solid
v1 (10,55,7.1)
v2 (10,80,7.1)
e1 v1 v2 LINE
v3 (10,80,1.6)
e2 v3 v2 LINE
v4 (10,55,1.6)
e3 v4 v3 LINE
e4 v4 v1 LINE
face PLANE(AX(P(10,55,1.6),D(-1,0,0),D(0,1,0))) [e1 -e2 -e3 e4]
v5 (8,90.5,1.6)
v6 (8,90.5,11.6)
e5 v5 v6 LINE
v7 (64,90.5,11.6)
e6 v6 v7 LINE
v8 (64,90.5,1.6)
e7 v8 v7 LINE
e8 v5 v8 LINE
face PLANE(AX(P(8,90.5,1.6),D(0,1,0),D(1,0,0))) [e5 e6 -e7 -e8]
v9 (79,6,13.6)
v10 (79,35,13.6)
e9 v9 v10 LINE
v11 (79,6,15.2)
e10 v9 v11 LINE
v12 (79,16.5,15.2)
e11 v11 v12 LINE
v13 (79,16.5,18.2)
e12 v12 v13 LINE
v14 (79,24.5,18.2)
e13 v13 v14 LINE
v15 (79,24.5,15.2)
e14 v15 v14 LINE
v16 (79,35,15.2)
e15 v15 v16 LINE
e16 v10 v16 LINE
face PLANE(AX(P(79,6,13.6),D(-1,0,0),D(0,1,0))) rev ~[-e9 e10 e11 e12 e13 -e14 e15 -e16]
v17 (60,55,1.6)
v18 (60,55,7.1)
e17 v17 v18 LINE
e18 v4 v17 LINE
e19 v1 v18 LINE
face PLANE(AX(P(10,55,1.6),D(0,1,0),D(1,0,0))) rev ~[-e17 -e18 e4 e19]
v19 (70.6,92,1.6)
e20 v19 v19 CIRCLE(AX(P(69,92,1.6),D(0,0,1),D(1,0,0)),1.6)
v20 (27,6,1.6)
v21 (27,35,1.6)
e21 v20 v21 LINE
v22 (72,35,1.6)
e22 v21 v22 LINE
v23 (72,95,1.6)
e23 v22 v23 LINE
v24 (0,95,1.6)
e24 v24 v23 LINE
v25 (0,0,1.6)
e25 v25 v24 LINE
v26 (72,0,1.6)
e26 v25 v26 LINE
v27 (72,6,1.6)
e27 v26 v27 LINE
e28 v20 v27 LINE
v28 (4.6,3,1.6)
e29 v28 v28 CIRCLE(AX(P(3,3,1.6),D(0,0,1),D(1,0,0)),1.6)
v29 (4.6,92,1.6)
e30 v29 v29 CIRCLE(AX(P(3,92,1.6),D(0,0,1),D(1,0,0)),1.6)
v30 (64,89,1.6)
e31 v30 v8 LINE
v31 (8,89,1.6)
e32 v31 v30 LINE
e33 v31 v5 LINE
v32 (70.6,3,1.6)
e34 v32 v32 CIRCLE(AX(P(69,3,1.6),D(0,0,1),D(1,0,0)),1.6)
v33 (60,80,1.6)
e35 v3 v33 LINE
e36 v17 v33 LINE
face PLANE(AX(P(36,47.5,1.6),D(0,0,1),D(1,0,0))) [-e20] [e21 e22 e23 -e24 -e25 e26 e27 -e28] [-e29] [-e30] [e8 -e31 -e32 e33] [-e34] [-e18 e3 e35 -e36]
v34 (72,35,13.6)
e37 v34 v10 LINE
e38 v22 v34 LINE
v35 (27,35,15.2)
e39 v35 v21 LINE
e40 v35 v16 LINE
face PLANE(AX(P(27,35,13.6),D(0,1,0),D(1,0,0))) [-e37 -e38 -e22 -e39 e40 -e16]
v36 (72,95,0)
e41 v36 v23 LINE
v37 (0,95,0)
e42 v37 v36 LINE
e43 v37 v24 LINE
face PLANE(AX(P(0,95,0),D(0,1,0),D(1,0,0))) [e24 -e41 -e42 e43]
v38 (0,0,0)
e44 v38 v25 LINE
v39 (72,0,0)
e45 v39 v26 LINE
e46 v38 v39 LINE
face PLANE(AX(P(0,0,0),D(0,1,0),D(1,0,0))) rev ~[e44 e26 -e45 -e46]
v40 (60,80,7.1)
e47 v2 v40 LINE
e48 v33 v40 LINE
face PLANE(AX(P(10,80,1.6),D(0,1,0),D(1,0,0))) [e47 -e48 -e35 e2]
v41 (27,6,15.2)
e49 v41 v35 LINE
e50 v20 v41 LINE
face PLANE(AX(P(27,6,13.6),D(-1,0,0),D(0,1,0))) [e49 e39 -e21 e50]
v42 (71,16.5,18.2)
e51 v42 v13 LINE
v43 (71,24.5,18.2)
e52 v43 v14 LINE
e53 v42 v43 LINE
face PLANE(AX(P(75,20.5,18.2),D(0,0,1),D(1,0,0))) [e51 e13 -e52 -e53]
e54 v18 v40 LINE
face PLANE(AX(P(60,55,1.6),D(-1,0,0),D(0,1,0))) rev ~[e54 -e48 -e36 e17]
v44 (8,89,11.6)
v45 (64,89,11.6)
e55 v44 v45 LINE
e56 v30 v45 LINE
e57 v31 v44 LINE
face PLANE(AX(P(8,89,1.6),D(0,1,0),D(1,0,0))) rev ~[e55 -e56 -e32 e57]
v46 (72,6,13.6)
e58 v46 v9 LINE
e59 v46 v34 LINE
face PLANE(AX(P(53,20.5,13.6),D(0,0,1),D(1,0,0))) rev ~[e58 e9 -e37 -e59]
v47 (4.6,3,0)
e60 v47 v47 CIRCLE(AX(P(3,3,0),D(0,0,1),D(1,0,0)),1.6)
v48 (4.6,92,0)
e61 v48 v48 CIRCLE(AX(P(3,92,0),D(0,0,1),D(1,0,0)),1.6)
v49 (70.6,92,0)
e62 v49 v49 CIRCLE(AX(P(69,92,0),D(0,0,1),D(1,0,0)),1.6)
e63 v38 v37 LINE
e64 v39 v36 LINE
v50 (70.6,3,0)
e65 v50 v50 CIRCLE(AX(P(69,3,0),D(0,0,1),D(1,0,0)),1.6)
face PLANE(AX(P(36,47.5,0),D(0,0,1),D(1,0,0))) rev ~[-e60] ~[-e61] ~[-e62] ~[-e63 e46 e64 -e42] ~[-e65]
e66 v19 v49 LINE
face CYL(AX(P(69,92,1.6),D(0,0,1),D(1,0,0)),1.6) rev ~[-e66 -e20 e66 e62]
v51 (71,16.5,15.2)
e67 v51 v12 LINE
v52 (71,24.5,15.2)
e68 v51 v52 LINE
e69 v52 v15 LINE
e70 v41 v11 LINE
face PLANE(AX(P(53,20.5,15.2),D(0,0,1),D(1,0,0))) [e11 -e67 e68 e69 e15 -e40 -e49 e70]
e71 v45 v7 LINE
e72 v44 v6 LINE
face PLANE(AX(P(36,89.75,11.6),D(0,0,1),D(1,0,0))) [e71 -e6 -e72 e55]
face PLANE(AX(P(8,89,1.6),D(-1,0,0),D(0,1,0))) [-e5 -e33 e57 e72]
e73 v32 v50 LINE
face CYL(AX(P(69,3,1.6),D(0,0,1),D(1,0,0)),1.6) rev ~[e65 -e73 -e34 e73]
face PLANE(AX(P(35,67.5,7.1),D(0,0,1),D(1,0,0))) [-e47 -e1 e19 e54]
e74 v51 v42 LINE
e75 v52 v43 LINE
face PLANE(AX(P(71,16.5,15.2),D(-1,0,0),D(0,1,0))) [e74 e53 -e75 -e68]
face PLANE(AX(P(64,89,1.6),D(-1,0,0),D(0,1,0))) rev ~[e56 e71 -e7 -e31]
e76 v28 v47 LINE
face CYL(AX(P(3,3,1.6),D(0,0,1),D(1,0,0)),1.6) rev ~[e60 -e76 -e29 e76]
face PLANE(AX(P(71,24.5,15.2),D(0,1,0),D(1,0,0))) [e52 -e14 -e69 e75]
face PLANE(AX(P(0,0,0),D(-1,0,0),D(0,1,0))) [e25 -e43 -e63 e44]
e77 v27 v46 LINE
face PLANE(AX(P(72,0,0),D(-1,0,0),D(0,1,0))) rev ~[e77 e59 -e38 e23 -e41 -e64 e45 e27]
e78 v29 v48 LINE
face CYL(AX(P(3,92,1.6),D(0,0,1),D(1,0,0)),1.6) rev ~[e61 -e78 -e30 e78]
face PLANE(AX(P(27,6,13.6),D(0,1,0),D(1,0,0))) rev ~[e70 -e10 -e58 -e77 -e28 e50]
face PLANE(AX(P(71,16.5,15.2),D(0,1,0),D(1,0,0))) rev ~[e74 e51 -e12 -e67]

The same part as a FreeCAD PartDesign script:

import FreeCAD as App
import Part
import Sketcher
from FreeCAD import Vector


def add_polygon(sketch, points):
    """Adds a closed chain of lines whose ends are joined by coincident constraints."""
    first, n = sketch.GeometryCount, len(points)
    for a, b in zip(points, points[1:] + points[:1]):
        sketch.addGeometry(Part.LineSegment(App.Vector(*a, 0), App.Vector(*b, 0)), False)
    for i in range(n):
        sketch.addConstraint(Sketcher.Constraint("Coincident", first + i, 2, first + (i + 1) % n, 1))

doc = App.newDocument("Part")
params = doc.addObject("Spreadsheet::Sheet", "Params")
for row, (alias, value) in enumerate([
    ("sketch1_width", "72 mm"),
    ("sketch1_height", "95 mm"),
    ("pad1_length", "1.6 mm"),
    ("sketch2_diameter", "3.2 mm"),
    ("sketch3_width", "45 mm"),
    ("sketch3_height", "29 mm"),
    ("pad2_length", "12 mm"),
    ("sketch4_width", "52 mm"),
    ("sketch4_height", "29 mm"),
    ("pad3_length", "1.6 mm"),
    ("sketch5_width", "8 mm"),
    ("pad4_length", "3 mm"),
    ("sketch6_width", "56 mm"),
    ("sketch6_height", "1.5 mm"),
    ("pad5_length", "10 mm"),
    ("sketch7_width", "50 mm"),
    ("sketch7_height", "25 mm"),
    ("pad6_length", "5.5 mm"),
], start=1):
    params.set(f"A{row}", alias)
    params.set(f"B{row}", "=" + value)
    params.setAlias(f"B{row}", alias)

body = doc.addObject("PartDesign::Body", "Body")

sketch1 = doc.addObject("Sketcher::SketchObject", "Sketch")
body.addObject(sketch1)
sketch1.AttachmentSupport = (doc.XY_Plane, [""])
sketch1.MapMode = "FlatFace"
add_polygon(sketch1, [(0, 95), (0, 0), (72, 0), (72, 95)])
sketch1.addConstraint([
    Sketcher.Constraint("Vertical", 0),
    Sketcher.Constraint("Horizontal", 1),
    Sketcher.Constraint("Vertical", 2),
    Sketcher.Constraint("Horizontal", 3),
    Sketcher.Constraint("Coincident", 0, 2, -1, 1),
    Sketcher.Constraint("DistanceX", 1, 1, 1, 2, 72.0),
    Sketcher.Constraint("DistanceY", 0, 2, 0, 1, 95.0),
])
sketch1.setExpression("Constraints[9]", "Params.sketch1_width")
sketch1.setExpression("Constraints[10]", "Params.sketch1_height")
pad1 = doc.addObject("PartDesign::Pad", "Pad")
body.addObject(pad1)
pad1.Profile = sketch1
pad1.setExpression("Length", "Params.pad1_length")

sketch2 = doc.addObject("Sketcher::SketchObject", "Sketch001")
body.addObject(sketch2)
sketch2.AttachmentSupport = (doc.XY_Plane, [""])
sketch2.MapMode = "FlatFace"
sketch2.AttachmentOffset = App.Placement(Vector(0, 0, 1.6), App.Rotation())
sketch2.addGeometry([
    Part.Circle(Vector(3, 3, 0), Vector(0, 0, 1), 1.6),
    Part.Circle(Vector(69, 3, 0), Vector(0, 0, 1), 1.6),
    Part.Circle(Vector(69, 92, 0), Vector(0, 0, 1), 1.6),
    Part.Circle(Vector(3, 92, 0), Vector(0, 0, 1), 1.6),
], False)
sketch2.addConstraint([
    Sketcher.Constraint("Equal", 0, 1),
    Sketcher.Constraint("Equal", 1, 2),
    Sketcher.Constraint("Equal", 2, 3),
    Sketcher.Constraint("Horizontal", 0, 3, 1, 3),
    Sketcher.Constraint("Horizontal", 2, 3, 3, 3),
    Sketcher.Constraint("Vertical", 1, 3, 2, 3),
    Sketcher.Constraint("Vertical", 0, 3, 3, 3),
    Sketcher.Constraint("Diameter", 0, 3.2),
    Sketcher.Constraint("DistanceX", -1, 1, 0, 3, 3.0),
    Sketcher.Constraint("DistanceY", -1, 1, 0, 3, 3.0),
    Sketcher.Constraint("DistanceX", -1, 1, 1, 3, 69.0),
    Sketcher.Constraint("DistanceY", -1, 1, 2, 3, 92.0),
])
sketch2.setExpression("Constraints[7]", "Params.sketch2_diameter")
pocket1 = doc.addObject("PartDesign::Pocket", "Pocket")
body.addObject(pocket1)
pocket1.Profile = sketch2
pocket1.Type = "ThroughAll"

sketch3 = doc.addObject("Sketcher::SketchObject", "Sketch002")
body.addObject(sketch3)
sketch3.AttachmentSupport = (doc.XY_Plane, [""])
sketch3.MapMode = "FlatFace"
sketch3.AttachmentOffset = App.Placement(Vector(0, 0, 1.6), App.Rotation())
add_polygon(sketch3, [(27, 35), (27, 6), (72, 6), (72, 35)])
sketch3.addConstraint([
    Sketcher.Constraint("Vertical", 0),
    Sketcher.Constraint("Horizontal", 1),
    Sketcher.Constraint("Vertical", 2),
    Sketcher.Constraint("Horizontal", 3),
    Sketcher.Constraint("DistanceX", 1, 1, 1, 2, 45.0),
    Sketcher.Constraint("DistanceY", 0, 2, 0, 1, 29.0),
    Sketcher.Constraint("DistanceX", -1, 1, 0, 2, 27.0),
    Sketcher.Constraint("DistanceY", -1, 1, 0, 2, 6.0),
])
sketch3.setExpression("Constraints[8]", "Params.sketch3_width")
sketch3.setExpression("Constraints[9]", "Params.sketch3_height")
pad2 = doc.addObject("PartDesign::Pad", "Pad001")
body.addObject(pad2)
pad2.Profile = sketch3
pad2.setExpression("Length", "Params.pad2_length")

sketch4 = doc.addObject("Sketcher::SketchObject", "Sketch003")
body.addObject(sketch4)
sketch4.AttachmentSupport = (doc.XY_Plane, [""])
sketch4.MapMode = "FlatFace"
sketch4.AttachmentOffset = App.Placement(Vector(0, 0, 13.6), App.Rotation())
add_polygon(sketch4, [(27, 35), (27, 6), (79, 6), (79, 35)])
sketch4.addConstraint([
    Sketcher.Constraint("Vertical", 0),
    Sketcher.Constraint("Horizontal", 1),
    Sketcher.Constraint("Vertical", 2),
    Sketcher.Constraint("Horizontal", 3),
    Sketcher.Constraint("DistanceX", 1, 1, 1, 2, 52.0),
    Sketcher.Constraint("DistanceY", 0, 2, 0, 1, 29.0),
    Sketcher.Constraint("DistanceX", -1, 1, 0, 2, 27.0),
    Sketcher.Constraint("DistanceY", -1, 1, 0, 2, 6.0),
])
sketch4.setExpression("Constraints[8]", "Params.sketch4_width")
sketch4.setExpression("Constraints[9]", "Params.sketch4_height")
pad3 = doc.addObject("PartDesign::Pad", "Pad002")
body.addObject(pad3)
pad3.Profile = sketch4
pad3.setExpression("Length", "Params.pad3_length")

sketch5 = doc.addObject("Sketcher::SketchObject", "Sketch004")
body.addObject(sketch5)
sketch5.AttachmentSupport = (doc.XY_Plane, [""])
sketch5.MapMode = "FlatFace"
sketch5.AttachmentOffset = App.Placement(Vector(0, 0, 15.2), App.Rotation())
add_polygon(sketch5, [(71, 24.5), (71, 16.5), (79, 16.5), (79, 24.5)])
sketch5.addConstraint([
    Sketcher.Constraint("Vertical", 0),
    Sketcher.Constraint("Horizontal", 1),
    Sketcher.Constraint("Vertical", 2),
    Sketcher.Constraint("Horizontal", 3),
    Sketcher.Constraint("Equal", 3, 0),
    Sketcher.Constraint("DistanceX", 1, 1, 1, 2, 8.0),
    Sketcher.Constraint("DistanceX", -1, 1, 0, 2, 71.0),
    Sketcher.Constraint("DistanceY", -1, 1, 0, 2, 16.5),
])
sketch5.setExpression("Constraints[9]", "Params.sketch5_width")
pad4 = doc.addObject("PartDesign::Pad", "Pad003")
body.addObject(pad4)
pad4.Profile = sketch5
pad4.setExpression("Length", "Params.pad4_length")

sketch6 = doc.addObject("Sketcher::SketchObject", "Sketch005")
body.addObject(sketch6)
sketch6.AttachmentSupport = (doc.XY_Plane, [""])
sketch6.MapMode = "FlatFace"
sketch6.AttachmentOffset = App.Placement(Vector(0, 0, 1.6), App.Rotation())
add_polygon(sketch6, [(8, 90.5), (8, 89), (64, 89), (64, 90.5)])
sketch6.addConstraint([
    Sketcher.Constraint("Vertical", 0),
    Sketcher.Constraint("Horizontal", 1),
    Sketcher.Constraint("Vertical", 2),
    Sketcher.Constraint("Horizontal", 3),
    Sketcher.Constraint("DistanceX", 1, 1, 1, 2, 56.0),
    Sketcher.Constraint("DistanceY", 0, 2, 0, 1, 1.5),
    Sketcher.Constraint("DistanceX", -1, 1, 0, 2, 8.0),
    Sketcher.Constraint("DistanceY", -1, 1, 0, 2, 89.0),
])
sketch6.setExpression("Constraints[8]", "Params.sketch6_width")
sketch6.setExpression("Constraints[9]", "Params.sketch6_height")
pad5 = doc.addObject("PartDesign::Pad", "Pad004")
body.addObject(pad5)
pad5.Profile = sketch6
pad5.setExpression("Length", "Params.pad5_length")

sketch7 = doc.addObject("Sketcher::SketchObject", "Sketch006")
body.addObject(sketch7)
sketch7.AttachmentSupport = (doc.XY_Plane, [""])
sketch7.MapMode = "FlatFace"
sketch7.AttachmentOffset = App.Placement(Vector(0, 0, 1.6), App.Rotation())
add_polygon(sketch7, [(10, 80), (10, 55), (60, 55), (60, 80)])
sketch7.addConstraint([
    Sketcher.Constraint("Vertical", 0),
    Sketcher.Constraint("Horizontal", 1),
    Sketcher.Constraint("Vertical", 2),
    Sketcher.Constraint("Horizontal", 3),
    Sketcher.Constraint("DistanceX", 1, 1, 1, 2, 50.0),
    Sketcher.Constraint("DistanceY", 0, 2, 0, 1, 25.0),
    Sketcher.Constraint("DistanceX", -1, 1, 0, 2, 10.0),
    Sketcher.Constraint("DistanceY", -1, 1, 0, 2, 55.0),
])
sketch7.setExpression("Constraints[8]", "Params.sketch7_width")
sketch7.setExpression("Constraints[9]", "Params.sketch7_height")
pad6 = doc.addObject("PartDesign::Pad", "Pad005")
body.addObject(pad6)
pad6.Profile = sketch7
pad6.setExpression("Length", "Params.pad6_length")

doc.recompute()
